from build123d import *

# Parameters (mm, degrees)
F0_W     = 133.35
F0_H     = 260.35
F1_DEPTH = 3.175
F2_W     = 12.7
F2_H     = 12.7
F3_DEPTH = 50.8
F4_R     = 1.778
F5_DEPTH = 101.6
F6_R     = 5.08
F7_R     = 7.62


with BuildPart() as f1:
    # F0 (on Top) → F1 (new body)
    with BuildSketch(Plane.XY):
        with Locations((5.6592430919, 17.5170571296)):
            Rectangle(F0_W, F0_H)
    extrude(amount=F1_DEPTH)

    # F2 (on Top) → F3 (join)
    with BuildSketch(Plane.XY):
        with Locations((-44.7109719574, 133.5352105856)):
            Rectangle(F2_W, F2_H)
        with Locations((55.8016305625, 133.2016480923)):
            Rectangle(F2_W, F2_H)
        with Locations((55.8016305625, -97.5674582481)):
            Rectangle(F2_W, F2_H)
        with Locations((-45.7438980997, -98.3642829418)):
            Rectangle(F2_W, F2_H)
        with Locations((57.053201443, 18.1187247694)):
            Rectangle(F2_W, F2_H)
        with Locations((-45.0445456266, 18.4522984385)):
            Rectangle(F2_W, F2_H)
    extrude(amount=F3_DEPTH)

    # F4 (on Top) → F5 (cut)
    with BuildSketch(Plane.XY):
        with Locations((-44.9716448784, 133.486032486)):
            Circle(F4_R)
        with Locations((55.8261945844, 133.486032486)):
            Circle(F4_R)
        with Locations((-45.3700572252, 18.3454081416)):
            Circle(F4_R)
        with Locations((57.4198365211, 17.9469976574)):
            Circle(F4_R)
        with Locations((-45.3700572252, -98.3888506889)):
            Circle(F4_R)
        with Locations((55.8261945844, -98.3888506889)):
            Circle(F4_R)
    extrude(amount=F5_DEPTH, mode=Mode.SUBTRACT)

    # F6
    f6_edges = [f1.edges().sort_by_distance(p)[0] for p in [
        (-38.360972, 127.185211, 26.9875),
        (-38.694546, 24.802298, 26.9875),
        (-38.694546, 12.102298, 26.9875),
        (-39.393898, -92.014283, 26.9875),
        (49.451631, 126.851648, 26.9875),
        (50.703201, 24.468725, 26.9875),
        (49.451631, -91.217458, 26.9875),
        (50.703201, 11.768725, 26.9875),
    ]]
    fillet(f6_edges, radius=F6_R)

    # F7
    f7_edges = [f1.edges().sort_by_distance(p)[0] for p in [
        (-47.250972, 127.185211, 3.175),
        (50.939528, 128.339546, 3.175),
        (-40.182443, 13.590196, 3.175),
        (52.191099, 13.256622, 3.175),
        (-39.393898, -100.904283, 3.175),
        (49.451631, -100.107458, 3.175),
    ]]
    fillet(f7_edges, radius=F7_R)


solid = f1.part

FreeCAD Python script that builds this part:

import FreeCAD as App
import Part
import Sketcher

V = App.Vector
Q = App.Units.Quantity


def edges_at(feature, points):
    """Names of the edges that pass closest to the given points."""
    edges = feature.Shape.Edges
    near = lambda p: min(range(len(edges)), key=lambda i: edges[i].distToShape(Part.Vertex(*p))[0])
    return sorted({f"Edge{near(p) + 1}" for p in points})


def add_polygon(sketch, points):
    """Adds a closed chain of lines whose ends are joined by coincident constraints."""
    first, n = sketch.GeometryCount, len(points)
    for a, b in zip(points, points[1:] + points[:1]):
        sketch.addGeometry(Part.LineSegment(App.Vector(*a, 0), App.Vector(*b, 0)), False)
    for i in range(n):
        sketch.addConstraint(Sketcher.Constraint("Coincident", first + i, 2, first + (i + 1) % n, 1))

doc = App.newDocument("Part")
body = doc.addObject("PartDesign::Body", "Body")

# Sketch on XY plane
sketch1 = body.newObject("Sketcher::SketchObject", "Sketch")
sketch1.AttachmentSupport = (doc.getObject("XY_Plane"), [""])
sketch1.MapMode = "FlatFace"
add_polygon(sketch1, [(-61, 148), (-61, -113), (72, -113), (72, 148)])  # lines 0-3
sketch1.addConstraint([
    Sketcher.Constraint("Vertical", 0),
    Sketcher.Constraint("Horizontal", 1),
    Sketcher.Constraint("Vertical", 2),
    Sketcher.Constraint("Horizontal", 3),
    Sketcher.Constraint("DistanceX", 1, 1, 1, 2, Q("5.25 in")),
    Sketcher.Constraint("DistanceY", 0, 2, 0, 1, Q("10.25 in")),
    Sketcher.Constraint("DistanceX", 0, 2, -1, 1, Q("61.015757 mm")),
    Sketcher.Constraint("DistanceY", 0, 2, -1, 1, Q("112.657943 mm")),
])
pad1 = body.newObject("PartDesign::Pad", "Pad")
pad1.Profile = sketch1
pad1.Length = Q("0.125 in")

# Sketch on XY plane
sketch2 = body.newObject("Sketcher::SketchObject", "Sketch001")
sketch2.AttachmentSupport = (doc.getObject("XY_Plane"), [""])
sketch2.MapMode = "FlatFace"
add_polygon(sketch2, [(-51, 140), (-51, 127), (-38, 127), (-38, 140)])  # lines 0-3
add_polygon(sketch2, [(49, 140), (49, 127), (62, 127), (62, 140)])  # lines 4-7
add_polygon(sketch2, [(49, -91), (49, -104), (62, -104), (62, -91)])  # lines 8-11
add_polygon(sketch2, [(-52, -92), (-52, -105), (-39, -105), (-39, -92)])  # lines 12-15
add_polygon(sketch2, [(51, 24), (51, 12), (63, 12), (63, 24)])  # lines 16-19
add_polygon(sketch2, [(-51, 25), (-51, 12), (-39, 12), (-39, 25)])  # lines 20-23
sketch2.addConstraint([
    Sketcher.Constraint("Vertical", 0),
    Sketcher.Constraint("Horizontal", 1),
    Sketcher.Constraint("Vertical", 2),
    Sketcher.Constraint("Horizontal", 3),
    Sketcher.Constraint("Vertical", 4),
    Sketcher.Constraint("Horizontal", 5),
    Sketcher.Constraint("Vertical", 6),
    Sketcher.Constraint("Horizontal", 7),
    Sketcher.Constraint("Vertical", 8),
    Sketcher.Constraint("Horizontal", 9),
    Sketcher.Constraint("Vertical", 10),
    Sketcher.Constraint("Horizontal", 11),
    Sketcher.Constraint("Vertical", 12),
    Sketcher.Constraint("Horizontal", 13),
    Sketcher.Constraint("Vertical", 14),
    Sketcher.Constraint("Horizontal", 15),
    Sketcher.Constraint("Vertical", 16),
    Sketcher.Constraint("Horizontal", 17),
    Sketcher.Constraint("Vertical", 18),
    Sketcher.Constraint("Horizontal", 19),
    Sketcher.Constraint("Vertical", 20),
    Sketcher.Constraint("Horizontal", 21),
    Sketcher.Constraint("Vertical", 22),
    Sketcher.Constraint("Horizontal", 23),
    Sketcher.Constraint("Vertical", 7, 2, 8, 2),
    Sketcher.Constraint("Vertical", 6, 2, 9, 2),
    Sketcher.Constraint("Equal", 3, 5),
    Sketcher.Constraint("Equal", 11, 13),
    Sketcher.Constraint("Equal", 15, 17),
    Sketcher.Constraint("Equal", 19, 21),
    Sketcher.Constraint("Equal", 23, 0),
    Sketcher.Constraint("Equal", 2, 4),
    Sketcher.Constraint("Equal", 6, 8),
    Sketcher.Constraint("Equal", 10, 12),
    Sketcher.Constraint("Equal", 14, 16),
    Sketcher.Constraint("Equal", 18, 20),
    Sketcher.Constraint("DistanceX", 1, 1, 1, 2, Q("0.5 in")),
    Sketcher.Constraint("DistanceX", 12, 2, -1, 1, Q("52.093898 mm")),
    Sketcher.Constraint("DistanceX", -1, 1, 16, 2, Q("50.703201 mm")),
    Sketcher.Constraint("DistanceY", -1, 1, 20, 2, Q("12.102298 mm")),
    Sketcher.Constraint("DistanceX", 0, 2, -1, 1, Q("51.060972 mm")),
    Sketcher.Constraint("DistanceY", -1, 1, 0, 2, Q("127.185211 mm")),
    Sketcher.Constraint("DistanceX", -1, 1, 4, 2, Q("49.451631 mm")),
    Sketcher.Constraint("DistanceY", -1, 1, 4, 2, Q("126.851648 mm")),
    Sketcher.Constraint("DistanceY", 8, 2, -1, 1, Q("103.917458 mm")),
    Sketcher.Constraint("DistanceY", 15, 2, 20, 2, Q("104.116581 mm")),
    Sketcher.Constraint("DistanceY", -1, 1, 16, 2, Q("11.768725 mm")),
    Sketcher.Constraint("DistanceX", 20, 2, -1, 1, Q("51.394546 mm")),
])
pad2 = body.newObject("PartDesign::Pad", "Pad001")
pad2.Profile = sketch2
pad2.Length = Q("2 in")

# Sketch on XY plane
sketch3 = body.newObject("Sketcher::SketchObject", "Sketch002")
sketch3.AttachmentSupport = (doc.getObject("XY_Plane"), [""])
sketch3.MapMode = "FlatFace"
sketch3.addGeometry([
    Part.Circle(V(-45, 133.5, 0), V(0, 0, 1), 1.8),  # 0
    Part.Circle(V(55.8, 133.5, 0), V(0, 0, 1), 1.8),  # 1
    Part.Circle(V(-45.4, 18.3, 0), V(0, 0, 1), 1.8),  # 2
    Part.Circle(V(57.4, 17.9, 0), V(0, 0, 1), 1.8),  # 3
    Part.Circle(V(-45.4, -98.4, 0), V(0, 0, 1), 1.8),  # 4
    Part.Circle(V(55.8, -98.4, 0), V(0, 0, 1), 1.8),  # 5
], False)
sketch3.addConstraint([
    Sketcher.Constraint("Equal", 0, 1),
    Sketcher.Constraint("Equal", 1, 2),
    Sketcher.Constraint("Equal", 2, 3),
    Sketcher.Constraint("Equal", 3, 4),
    Sketcher.Constraint("Equal", 4, 5),
    Sketcher.Constraint("Horizontal", 0, 3, 1, 3),
    Sketcher.Constraint("Horizontal", 4, 3, 5, 3),
    Sketcher.Constraint("Vertical", 2, 3, 4, 3),
    Sketcher.Constraint("Vertical", 1, 3, 5, 3),
    Sketcher.Constraint("Diameter", 0, Q("0.14 in")),
    Sketcher.Constraint("DistanceY", -1, 1, 2, 3, Q("18.345408 mm")),
    Sketcher.Constraint("DistanceY", 4, 3, -1, 1, Q("98.388851 mm")),
    Sketcher.Constraint("DistanceX", 0, 3, 1, 3, Q("100.797839 mm")),
    Sketcher.Constraint("DistanceX", 2, 3, 1, 3, Q("101.196252 mm")),
    Sketcher.Constraint("DistanceY", 3, 3, 2, 3, Q("0.39841 mm")),
    Sketcher.Constraint("DistanceX", 1, 3, 3, 3, Q("1.593642 mm")),
    Sketcher.Constraint("DistanceX", 0, 3, -1, 1, Q("44.971645 mm")),
    Sketcher.Constraint("DistanceY", -1, 1, 0, 3, Q("133.486032 mm")),
])
pocket1 = body.newObject("PartDesign::Pocket", "Pocket")
pocket1.Profile = sketch3
pocket1.Length = Q("4 in")
pocket1.Reversed = True
doc.recompute()

fillet = body.newObject("PartDesign::Fillet", "Fillet")
fillet.Base = (pocket1, edges_at(pocket1, [
    (-38.361, 127.185, 26.988),
    (-38.695, 24.802, 26.988),
    (-38.695, 12.102, 26.988),
    (-39.394, -92.014, 26.988),
    (49.452, 126.852, 26.988),
    (50.703, 24.469, 26.988),
    (49.452, -91.217, 26.988),
    (50.703, 11.769, 26.988),
]))
fillet.Radius = Q("0.2 in")
doc.recompute()

fillet2 = body.newObject("PartDesign::Fillet", "Fillet001")
fillet2.Base = (fillet, edges_at(fillet, [
    (-47.251, 127.185, 3.175),
    (50.94, 128.34, 3.175),
    (-40.182, 13.59, 3.175),
    (52.191, 13.257, 3.175),
    (-39.394, -100.904, 3.175),
    (49.452, -100.107, 3.175),
]))
fillet2.Radius = Q("0.3 in")

doc.recompute()
